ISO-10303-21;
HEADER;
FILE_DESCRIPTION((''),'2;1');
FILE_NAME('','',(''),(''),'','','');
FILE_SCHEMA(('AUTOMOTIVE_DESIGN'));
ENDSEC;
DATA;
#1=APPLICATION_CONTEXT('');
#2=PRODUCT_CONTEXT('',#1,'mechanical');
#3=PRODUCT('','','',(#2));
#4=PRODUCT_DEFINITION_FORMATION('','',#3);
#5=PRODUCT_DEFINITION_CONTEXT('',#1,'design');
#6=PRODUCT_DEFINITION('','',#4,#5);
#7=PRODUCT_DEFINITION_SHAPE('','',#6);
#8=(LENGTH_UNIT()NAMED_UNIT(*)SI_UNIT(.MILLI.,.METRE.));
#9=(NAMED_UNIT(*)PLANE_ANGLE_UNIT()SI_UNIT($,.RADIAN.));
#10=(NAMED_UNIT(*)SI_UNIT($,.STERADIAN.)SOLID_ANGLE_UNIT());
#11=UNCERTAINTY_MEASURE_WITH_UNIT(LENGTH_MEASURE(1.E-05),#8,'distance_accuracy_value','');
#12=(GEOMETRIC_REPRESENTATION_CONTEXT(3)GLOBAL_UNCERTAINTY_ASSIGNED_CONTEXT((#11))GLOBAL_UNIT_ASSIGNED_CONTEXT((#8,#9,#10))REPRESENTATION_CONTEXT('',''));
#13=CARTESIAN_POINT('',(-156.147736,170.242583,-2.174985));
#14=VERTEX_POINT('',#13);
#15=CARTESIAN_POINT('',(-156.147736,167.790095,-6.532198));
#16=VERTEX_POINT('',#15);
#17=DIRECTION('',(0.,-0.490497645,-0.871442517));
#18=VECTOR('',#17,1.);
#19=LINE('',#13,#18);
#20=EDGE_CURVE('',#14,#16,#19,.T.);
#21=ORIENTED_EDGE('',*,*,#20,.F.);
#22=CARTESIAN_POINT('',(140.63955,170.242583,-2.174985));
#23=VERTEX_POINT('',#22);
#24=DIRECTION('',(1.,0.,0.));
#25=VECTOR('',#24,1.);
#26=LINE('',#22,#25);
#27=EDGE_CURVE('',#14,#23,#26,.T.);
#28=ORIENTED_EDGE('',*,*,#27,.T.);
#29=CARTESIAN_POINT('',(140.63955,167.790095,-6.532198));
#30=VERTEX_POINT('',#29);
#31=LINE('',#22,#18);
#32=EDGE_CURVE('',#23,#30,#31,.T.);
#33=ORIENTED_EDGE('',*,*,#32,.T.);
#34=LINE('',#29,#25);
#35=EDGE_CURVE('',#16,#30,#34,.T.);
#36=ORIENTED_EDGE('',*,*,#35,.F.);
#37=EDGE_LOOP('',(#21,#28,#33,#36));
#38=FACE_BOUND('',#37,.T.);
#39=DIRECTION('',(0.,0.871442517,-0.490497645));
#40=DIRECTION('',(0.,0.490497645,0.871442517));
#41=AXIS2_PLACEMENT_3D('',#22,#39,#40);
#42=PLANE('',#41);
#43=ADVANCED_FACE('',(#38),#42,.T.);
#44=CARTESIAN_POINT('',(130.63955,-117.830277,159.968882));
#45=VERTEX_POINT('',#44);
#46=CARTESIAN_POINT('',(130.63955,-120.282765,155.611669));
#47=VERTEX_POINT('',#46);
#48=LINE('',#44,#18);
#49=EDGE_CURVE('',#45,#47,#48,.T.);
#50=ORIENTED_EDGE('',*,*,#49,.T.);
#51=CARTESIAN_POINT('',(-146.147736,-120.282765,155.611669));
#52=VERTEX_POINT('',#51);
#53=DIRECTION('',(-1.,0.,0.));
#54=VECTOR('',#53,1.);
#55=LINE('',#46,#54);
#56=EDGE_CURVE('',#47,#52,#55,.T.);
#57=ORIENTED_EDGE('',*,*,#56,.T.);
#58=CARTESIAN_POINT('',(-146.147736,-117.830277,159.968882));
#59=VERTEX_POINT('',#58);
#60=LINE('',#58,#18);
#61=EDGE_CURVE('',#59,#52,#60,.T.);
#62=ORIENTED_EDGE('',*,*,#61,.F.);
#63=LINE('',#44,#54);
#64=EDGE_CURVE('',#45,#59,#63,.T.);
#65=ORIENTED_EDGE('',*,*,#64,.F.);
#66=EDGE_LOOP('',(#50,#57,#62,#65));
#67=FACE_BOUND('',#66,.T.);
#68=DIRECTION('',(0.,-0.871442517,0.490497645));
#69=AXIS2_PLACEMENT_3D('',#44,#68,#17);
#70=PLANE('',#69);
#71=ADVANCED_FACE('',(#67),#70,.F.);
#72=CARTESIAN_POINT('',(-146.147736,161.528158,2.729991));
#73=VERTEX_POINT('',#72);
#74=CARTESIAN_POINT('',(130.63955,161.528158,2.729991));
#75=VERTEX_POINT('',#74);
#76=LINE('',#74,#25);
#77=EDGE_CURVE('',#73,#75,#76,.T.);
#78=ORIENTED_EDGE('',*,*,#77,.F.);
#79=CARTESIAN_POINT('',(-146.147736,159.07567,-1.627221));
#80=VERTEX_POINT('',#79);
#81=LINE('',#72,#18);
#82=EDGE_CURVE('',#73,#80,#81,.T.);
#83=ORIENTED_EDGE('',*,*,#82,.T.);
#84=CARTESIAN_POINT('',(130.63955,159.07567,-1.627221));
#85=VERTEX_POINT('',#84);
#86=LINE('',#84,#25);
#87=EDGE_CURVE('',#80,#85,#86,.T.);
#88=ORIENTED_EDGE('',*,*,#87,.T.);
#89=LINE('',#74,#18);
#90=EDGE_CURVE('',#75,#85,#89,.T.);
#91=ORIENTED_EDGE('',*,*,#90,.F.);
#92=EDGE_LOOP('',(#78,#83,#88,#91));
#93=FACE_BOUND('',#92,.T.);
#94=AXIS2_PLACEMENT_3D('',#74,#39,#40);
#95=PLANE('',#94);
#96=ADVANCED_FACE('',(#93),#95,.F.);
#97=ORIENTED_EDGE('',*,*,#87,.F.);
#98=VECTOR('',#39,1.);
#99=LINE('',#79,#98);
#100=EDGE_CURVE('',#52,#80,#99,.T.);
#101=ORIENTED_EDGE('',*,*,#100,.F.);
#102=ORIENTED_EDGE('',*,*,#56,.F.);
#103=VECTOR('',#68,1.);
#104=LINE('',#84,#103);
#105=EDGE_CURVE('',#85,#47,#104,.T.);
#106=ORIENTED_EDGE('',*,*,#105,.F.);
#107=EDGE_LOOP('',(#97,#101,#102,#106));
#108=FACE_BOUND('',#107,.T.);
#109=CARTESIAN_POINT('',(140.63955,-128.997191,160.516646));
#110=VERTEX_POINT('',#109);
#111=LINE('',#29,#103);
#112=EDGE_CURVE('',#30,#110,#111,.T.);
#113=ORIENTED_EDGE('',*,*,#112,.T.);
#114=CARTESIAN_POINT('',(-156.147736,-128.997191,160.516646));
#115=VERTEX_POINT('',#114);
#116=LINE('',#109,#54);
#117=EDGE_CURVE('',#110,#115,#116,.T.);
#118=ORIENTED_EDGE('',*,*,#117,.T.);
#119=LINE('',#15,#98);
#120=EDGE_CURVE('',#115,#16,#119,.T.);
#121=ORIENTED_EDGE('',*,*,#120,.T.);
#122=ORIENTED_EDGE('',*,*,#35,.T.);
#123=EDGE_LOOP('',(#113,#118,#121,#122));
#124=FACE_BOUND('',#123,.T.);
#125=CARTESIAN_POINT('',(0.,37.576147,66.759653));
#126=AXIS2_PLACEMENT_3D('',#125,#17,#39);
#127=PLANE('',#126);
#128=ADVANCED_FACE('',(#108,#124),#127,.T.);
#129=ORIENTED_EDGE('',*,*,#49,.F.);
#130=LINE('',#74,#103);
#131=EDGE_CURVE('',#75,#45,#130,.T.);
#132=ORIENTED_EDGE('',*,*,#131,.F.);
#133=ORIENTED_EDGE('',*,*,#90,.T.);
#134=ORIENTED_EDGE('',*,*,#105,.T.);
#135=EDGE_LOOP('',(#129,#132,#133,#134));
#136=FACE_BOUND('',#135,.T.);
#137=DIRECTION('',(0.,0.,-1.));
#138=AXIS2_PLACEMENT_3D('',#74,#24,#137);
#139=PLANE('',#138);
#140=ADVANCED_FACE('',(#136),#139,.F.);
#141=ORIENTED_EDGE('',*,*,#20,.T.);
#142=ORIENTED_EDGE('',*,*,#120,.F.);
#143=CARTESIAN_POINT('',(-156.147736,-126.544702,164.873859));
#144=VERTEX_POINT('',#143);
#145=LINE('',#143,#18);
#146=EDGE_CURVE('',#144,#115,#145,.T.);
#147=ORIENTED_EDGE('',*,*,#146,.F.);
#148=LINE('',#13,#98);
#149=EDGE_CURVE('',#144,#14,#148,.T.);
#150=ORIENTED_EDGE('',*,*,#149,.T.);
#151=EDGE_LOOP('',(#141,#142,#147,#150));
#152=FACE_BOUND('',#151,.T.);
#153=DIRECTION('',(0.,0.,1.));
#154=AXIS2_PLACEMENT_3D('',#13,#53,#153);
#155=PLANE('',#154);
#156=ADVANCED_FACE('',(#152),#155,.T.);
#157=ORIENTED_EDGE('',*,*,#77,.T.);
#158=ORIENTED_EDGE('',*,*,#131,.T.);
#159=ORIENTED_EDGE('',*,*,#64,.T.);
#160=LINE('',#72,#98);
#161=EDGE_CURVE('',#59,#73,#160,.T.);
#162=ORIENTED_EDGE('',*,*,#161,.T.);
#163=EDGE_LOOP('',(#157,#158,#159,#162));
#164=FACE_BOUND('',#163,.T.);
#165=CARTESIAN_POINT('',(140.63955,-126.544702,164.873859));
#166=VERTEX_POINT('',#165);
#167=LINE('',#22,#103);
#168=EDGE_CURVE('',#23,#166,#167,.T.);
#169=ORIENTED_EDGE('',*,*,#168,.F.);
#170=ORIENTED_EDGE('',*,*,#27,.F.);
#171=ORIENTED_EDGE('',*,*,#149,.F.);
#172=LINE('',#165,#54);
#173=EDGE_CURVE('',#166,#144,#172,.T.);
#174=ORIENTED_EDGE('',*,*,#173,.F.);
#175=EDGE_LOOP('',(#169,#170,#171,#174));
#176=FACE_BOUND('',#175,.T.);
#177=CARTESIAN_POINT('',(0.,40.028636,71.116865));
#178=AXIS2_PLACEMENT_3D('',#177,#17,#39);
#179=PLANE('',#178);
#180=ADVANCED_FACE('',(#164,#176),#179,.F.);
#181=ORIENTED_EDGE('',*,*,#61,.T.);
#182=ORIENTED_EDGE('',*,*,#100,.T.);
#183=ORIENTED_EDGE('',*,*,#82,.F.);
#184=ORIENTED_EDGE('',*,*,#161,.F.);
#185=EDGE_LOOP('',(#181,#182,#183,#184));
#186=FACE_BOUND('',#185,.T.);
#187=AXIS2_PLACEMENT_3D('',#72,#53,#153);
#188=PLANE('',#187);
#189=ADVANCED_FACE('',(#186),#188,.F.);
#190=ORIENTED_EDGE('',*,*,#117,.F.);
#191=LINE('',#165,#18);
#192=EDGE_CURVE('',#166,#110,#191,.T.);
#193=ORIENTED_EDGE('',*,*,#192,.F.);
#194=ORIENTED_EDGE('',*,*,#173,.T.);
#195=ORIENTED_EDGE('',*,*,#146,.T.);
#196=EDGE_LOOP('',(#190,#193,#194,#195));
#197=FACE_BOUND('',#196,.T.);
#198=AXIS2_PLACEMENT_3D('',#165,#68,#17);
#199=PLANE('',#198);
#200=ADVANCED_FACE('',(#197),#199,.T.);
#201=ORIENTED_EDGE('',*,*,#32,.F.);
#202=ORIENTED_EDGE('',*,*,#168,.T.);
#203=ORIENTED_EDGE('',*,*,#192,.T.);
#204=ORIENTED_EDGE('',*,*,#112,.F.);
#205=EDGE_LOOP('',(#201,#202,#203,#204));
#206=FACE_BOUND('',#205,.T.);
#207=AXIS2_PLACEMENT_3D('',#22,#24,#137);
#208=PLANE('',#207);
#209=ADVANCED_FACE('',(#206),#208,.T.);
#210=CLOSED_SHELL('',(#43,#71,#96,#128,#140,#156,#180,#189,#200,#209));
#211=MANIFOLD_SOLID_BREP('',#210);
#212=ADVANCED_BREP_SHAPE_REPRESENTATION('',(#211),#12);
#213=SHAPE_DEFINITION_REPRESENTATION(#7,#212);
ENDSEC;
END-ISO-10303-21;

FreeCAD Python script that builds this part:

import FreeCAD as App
import Part
import Sketcher

V = App.Vector
Q = App.Units.Quantity

doc = App.newDocument("Part")
body = doc.addObject("PartDesign::Body", "Body")

# Sketch on an angled plane
sketch1 = doc.addObject("Sketcher::SketchObject", "Sketch")
body.addObject(sketch1)
sketch1.Placement = App.Placement(V(0, 37.576147, 66.759653), App.Rotation(V(-1, 0, 0), V(0, 0.871442517, -0.490497645), V(0, -0.490497645, -0.871442517), "ZXY"))
sketch1.addGeometry([
    Part.LineSegment(V(-141, 149, 0), V(-141, -191, 0)),  # 0
    Part.LineSegment(V(-141, -191, 0), V(156, -191, 0)),  # 1
    Part.LineSegment(V(156, -191, 0), V(156, 149, 0)),  # 2
    Part.LineSegment(V(156, 149, 0), V(-141, 149, 0)),  # 3
    Part.LineSegment(V(146, -181, 0), V(-131, -181, 0)),  # 4
    Part.LineSegment(V(-131, -181, 0), V(-131, 139, 0)),  # 5
    Part.LineSegment(V(-131, 139, 0), V(146, 139, 0)),  # 6
    Part.LineSegment(V(146, 139, 0), V(146, -181, 0)),  # 7
], False)
sketch1.addConstraint([
    Sketcher.Constraint("Coincident", 0, 2, 1, 1),
    Sketcher.Constraint("Coincident", 1, 2, 2, 1),
    Sketcher.Constraint("Coincident", 2, 2, 3, 1),
    Sketcher.Constraint("Coincident", 3, 2, 0, 1),
    Sketcher.Constraint("Coincident", 4, 2, 5, 1),
    Sketcher.Constraint("Coincident", 5, 2, 6, 1),
    Sketcher.Constraint("Coincident", 6, 2, 7, 1),
    Sketcher.Constraint("Coincident", 7, 2, 4, 1),
    Sketcher.Constraint("Vertical", 0),
    Sketcher.Constraint("Horizontal", 1),
    Sketcher.Constraint("Vertical", 2),
    Sketcher.Constraint("Horizontal", 3),
    Sketcher.Constraint("Horizontal", 4),
    Sketcher.Constraint("Vertical", 5),
    Sketcher.Constraint("Horizontal", 6),
    Sketcher.Constraint("Vertical", 7),
    Sketcher.Constraint("DistanceX", 0, 2, 4, 2, Q("10 mm")),
    Sketcher.Constraint("DistanceY", 0, 2, 4, 2, Q("10 mm")),
    Sketcher.Constraint("DistanceY", 5, 2, 3, 2, Q("10 mm")),
    Sketcher.Constraint("DistanceX", 6, 2, 2, 2, Q("10 mm")),
    Sketcher.Constraint("DistanceX", 1, 1, 1, 2, Q("296.787286 mm")),
    Sketcher.Constraint("DistanceY", 0, 2, 0, 1, Q("340.570124 mm")),
    Sketcher.Constraint("DistanceX", 0, 2, -1, 1, Q("140.63955 mm")),
    Sketcher.Constraint("DistanceY", -1, 1, 2, 2, Q("149.42345 mm")),
])
pad1 = doc.addObject("PartDesign::Pad", "Pad")
body.addObject(pad1)
pad1.Profile = sketch1
pad1.Length = 5
pad1.Reversed = True

doc.recompute()
